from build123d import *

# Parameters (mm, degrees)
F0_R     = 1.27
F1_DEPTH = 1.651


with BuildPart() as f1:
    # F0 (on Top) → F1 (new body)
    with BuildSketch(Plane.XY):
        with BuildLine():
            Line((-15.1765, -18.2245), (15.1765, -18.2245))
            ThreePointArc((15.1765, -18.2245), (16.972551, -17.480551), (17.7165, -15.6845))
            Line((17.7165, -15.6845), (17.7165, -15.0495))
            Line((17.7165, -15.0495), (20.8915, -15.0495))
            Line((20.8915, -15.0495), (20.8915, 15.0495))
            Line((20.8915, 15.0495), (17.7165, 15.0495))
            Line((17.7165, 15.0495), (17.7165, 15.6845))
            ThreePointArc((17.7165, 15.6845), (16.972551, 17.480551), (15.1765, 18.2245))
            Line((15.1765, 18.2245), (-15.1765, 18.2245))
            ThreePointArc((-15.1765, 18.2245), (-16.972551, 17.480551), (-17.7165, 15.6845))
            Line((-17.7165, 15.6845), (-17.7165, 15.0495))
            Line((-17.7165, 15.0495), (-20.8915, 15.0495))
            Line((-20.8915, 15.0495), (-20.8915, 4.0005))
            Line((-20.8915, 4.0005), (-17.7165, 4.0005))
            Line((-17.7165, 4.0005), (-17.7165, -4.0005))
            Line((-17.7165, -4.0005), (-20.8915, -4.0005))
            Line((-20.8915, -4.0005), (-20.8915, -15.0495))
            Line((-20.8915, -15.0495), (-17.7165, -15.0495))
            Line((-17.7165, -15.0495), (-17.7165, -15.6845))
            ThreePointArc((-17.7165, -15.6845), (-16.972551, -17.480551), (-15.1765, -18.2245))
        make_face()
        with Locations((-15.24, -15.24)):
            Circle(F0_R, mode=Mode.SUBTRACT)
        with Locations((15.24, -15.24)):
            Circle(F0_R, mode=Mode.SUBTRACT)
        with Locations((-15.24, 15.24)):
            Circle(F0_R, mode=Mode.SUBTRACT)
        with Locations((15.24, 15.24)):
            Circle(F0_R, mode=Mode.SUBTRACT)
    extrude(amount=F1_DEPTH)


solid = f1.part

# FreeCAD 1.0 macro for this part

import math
import FreeCAD as App
import Part
import Sketcher
Q = App.Units.Quantity

doc = App.newDocument("Part")
body = doc.addObject("PartDesign::Body", "Body")

# Sketch on XY plane
sketch1 = body.newObject("Sketcher::SketchObject", "Sketch")
sketch1.AttachmentSupport = (doc.getObject("XY_Plane"), [""])
sketch1.MapMode = "FlatFace"
sketch1.addGeometry([
    Part.LineSegment(App.Vector(-15.2, -18.2, 0), App.Vector(15.2, -18.2, 0)),  # 0
    Part.ArcOfCircle(Part.Circle(App.Vector(15.2, -15.7, 0), App.Vector(0, 0, 1), 2.5), math.radians(-90), math.radians(0)),  # 1
    Part.LineSegment(App.Vector(17.7, -15.7, 0), App.Vector(17.7, -15, 0)),  # 2
    Part.LineSegment(App.Vector(17.7, -15, 0), App.Vector(20.9, -15, 0)),  # 3
    Part.LineSegment(App.Vector(20.9, -15, 0), App.Vector(20.9, 15, 0)),  # 4
    Part.LineSegment(App.Vector(20.9, 15, 0), App.Vector(17.7, 15, 0)),  # 5
    Part.LineSegment(App.Vector(17.7, 15, 0), App.Vector(17.7, 15.7, 0)),  # 6
    Part.ArcOfCircle(Part.Circle(App.Vector(15.2, 15.7, 0), App.Vector(0, 0, 1), 2.5), math.radians(0), math.radians(90)),  # 7
    Part.LineSegment(App.Vector(15.2, 18.2, 0), App.Vector(-15.2, 18.2, 0)),  # 8
    Part.ArcOfCircle(Part.Circle(App.Vector(-15.2, 15.7, 0), App.Vector(0, 0, 1), 2.5), math.radians(90), math.radians(180)),  # 9
    Part.LineSegment(App.Vector(-17.7, 15.7, 0), App.Vector(-17.7, 15, 0)),  # 10
    Part.LineSegment(App.Vector(-17.7, 15, 0), App.Vector(-20.9, 15, 0)),  # 11
    Part.LineSegment(App.Vector(-20.9, 15, 0), App.Vector(-20.9, 4, 0)),  # 12
    Part.LineSegment(App.Vector(-20.9, 4, 0), App.Vector(-17.7, 4, 0)),  # 13
    Part.LineSegment(App.Vector(-17.7, 4, 0), App.Vector(-17.7, -4, 0)),  # 14
    Part.LineSegment(App.Vector(-17.7, -4, 0), App.Vector(-20.9, -4, 0)),  # 15
    Part.LineSegment(App.Vector(-20.9, -4, 0), App.Vector(-20.9, -15, 0)),  # 16
    Part.LineSegment(App.Vector(-20.9, -15, 0), App.Vector(-17.7, -15, 0)),  # 17
    Part.LineSegment(App.Vector(-17.7, -15, 0), App.Vector(-17.7, -15.7, 0)),  # 18
    Part.ArcOfCircle(Part.Circle(App.Vector(-15.2, -15.7, 0), App.Vector(0, 0, 1), 2.5), math.radians(-180), math.radians(-90)),  # 19
    Part.Circle(App.Vector(-15.2, -15.2, 0), App.Vector(0, 0, 1), 1.3),  # 20
    Part.Circle(App.Vector(15.2, -15.2, 0), App.Vector(0, 0, 1), 1.3),  # 21
    Part.Circle(App.Vector(-15.2, 15.2, 0), App.Vector(0, 0, 1), 1.3),  # 22
    Part.Circle(App.Vector(15.2, 15.2, 0), App.Vector(0, 0, 1), 1.3),  # 23
], False)
sketch1.addConstraint([
    Sketcher.Constraint("Tangent", 0, 2, 1, 1),
    Sketcher.Constraint("Tangent", 1, 2, 2, 1),
    Sketcher.Constraint("Coincident", 2, 2, 3, 1),
    Sketcher.Constraint("Coincident", 3, 2, 4, 1),
    Sketcher.Constraint("Coincident", 4, 2, 5, 1),
    Sketcher.Constraint("Coincident", 5, 2, 6, 1),
    Sketcher.Constraint("Tangent", 6, 2, 7, 1),
    Sketcher.Constraint("Tangent", 7, 2, 8, 1),
    Sketcher.Constraint("Tangent", 8, 2, 9, 1),
    Sketcher.Constraint("Tangent", 9, 2, 10, 1),
    Sketcher.Constraint("Coincident", 10, 2, 11, 1),
    Sketcher.Constraint("Coincident", 11, 2, 12, 1),
    Sketcher.Constraint("Coincident", 12, 2, 13, 1),
    Sketcher.Constraint("Coincident", 13, 2, 14, 1),
    Sketcher.Constraint("Coincident", 14, 2, 15, 1),
    Sketcher.Constraint("Coincident", 15, 2, 16, 1),
    Sketcher.Constraint("Coincident", 16, 2, 17, 1),
    Sketcher.Constraint("Coincident", 17, 2, 18, 1),
    Sketcher.Constraint("Tangent", 18, 2, 19, 1),
    Sketcher.Constraint("Tangent", 19, 2, 0, 1),
    Sketcher.Constraint("Horizontal", 0),
    Sketcher.Constraint("Vertical", 2),
    Sketcher.Constraint("Horizontal", 3),
    Sketcher.Constraint("Vertical", 4),
    Sketcher.Constraint("Horizontal", 5),
    Sketcher.Constraint("Vertical", 6),
    Sketcher.Constraint("Horizontal", 8),
    Sketcher.Constraint("Vertical", 10),
    Sketcher.Constraint("Horizontal", 11),
    Sketcher.Constraint("Vertical", 12),
    Sketcher.Constraint("Horizontal", 13),
    Sketcher.Constraint("Vertical", 14),
    Sketcher.Constraint("Horizontal", 15),
    Sketcher.Constraint("Vertical", 16),
    Sketcher.Constraint("Horizontal", 17),
    Sketcher.Constraint("Vertical", 18),
    Sketcher.Constraint("Equal", 1, 7),
    Sketcher.Constraint("Equal", 7, 9),
    Sketcher.Constraint("Equal", 9, 19),
    Sketcher.Constraint("Equal", 20, 21),
    Sketcher.Constraint("Equal", 21, 22),
    Sketcher.Constraint("Equal", 22, 23),
    Sketcher.Constraint("Symmetric", 1, 3, 9, 3, -1, 1),
    Sketcher.Constraint("Symmetric", 21, 3, 22, 3, -1, 1),
    Sketcher.Constraint("Symmetric", 20, 3, 23, 3, -1, 1),
    Sketcher.Constraint("Symmetric", 3, 2, 11, 2, -1, 1),
    Sketcher.Constraint("Symmetric", 4, 2, 16, 2, -1, 1),
    Sketcher.Constraint("Symmetric", 20, 3, 21, 3, -2),
    Sketcher.Constraint("Symmetric", 5, 2, 10, 2, -2),
    Sketcher.Constraint("Vertical", 9, 3, 19, 3),
    Sketcher.Constraint("Vertical", 10, 2, 13, 2),
    Sketcher.Constraint("Equal", 12, 16),
    Sketcher.Constraint("Diameter", 20, Q("0.1 in")),
    Sketcher.Constraint("Radius", 1, Q("0.1 in")),
    Sketcher.Constraint("DistanceX", 20, 3, -1, 1, Q("0.6 in")),
    Sketcher.Constraint("DistanceY", 20, 3, -1, 1, Q("0.6 in")),
    Sketcher.Constraint("DistanceX", 0, 1, 0, 2, Q("1.195 in")),
    Sketcher.Constraint("DistanceX", 3, 1, 3, 2, Q("0.125 in")),
    Sketcher.Constraint("DistanceY", 2, 1, 2, 2, Q("0.025 in")),
    Sketcher.Constraint("DistanceY", 4, 1, 4, 2, Q("1.185 in")),
    Sketcher.Constraint("DistanceY", 12, 2, 12, 1, Q("0.435 in")),
])
pad1 = body.newObject("PartDesign::Pad", "Pad")
pad1.Profile = sketch1
pad1.Length = Q("0.065 in")

doc.recompute()
